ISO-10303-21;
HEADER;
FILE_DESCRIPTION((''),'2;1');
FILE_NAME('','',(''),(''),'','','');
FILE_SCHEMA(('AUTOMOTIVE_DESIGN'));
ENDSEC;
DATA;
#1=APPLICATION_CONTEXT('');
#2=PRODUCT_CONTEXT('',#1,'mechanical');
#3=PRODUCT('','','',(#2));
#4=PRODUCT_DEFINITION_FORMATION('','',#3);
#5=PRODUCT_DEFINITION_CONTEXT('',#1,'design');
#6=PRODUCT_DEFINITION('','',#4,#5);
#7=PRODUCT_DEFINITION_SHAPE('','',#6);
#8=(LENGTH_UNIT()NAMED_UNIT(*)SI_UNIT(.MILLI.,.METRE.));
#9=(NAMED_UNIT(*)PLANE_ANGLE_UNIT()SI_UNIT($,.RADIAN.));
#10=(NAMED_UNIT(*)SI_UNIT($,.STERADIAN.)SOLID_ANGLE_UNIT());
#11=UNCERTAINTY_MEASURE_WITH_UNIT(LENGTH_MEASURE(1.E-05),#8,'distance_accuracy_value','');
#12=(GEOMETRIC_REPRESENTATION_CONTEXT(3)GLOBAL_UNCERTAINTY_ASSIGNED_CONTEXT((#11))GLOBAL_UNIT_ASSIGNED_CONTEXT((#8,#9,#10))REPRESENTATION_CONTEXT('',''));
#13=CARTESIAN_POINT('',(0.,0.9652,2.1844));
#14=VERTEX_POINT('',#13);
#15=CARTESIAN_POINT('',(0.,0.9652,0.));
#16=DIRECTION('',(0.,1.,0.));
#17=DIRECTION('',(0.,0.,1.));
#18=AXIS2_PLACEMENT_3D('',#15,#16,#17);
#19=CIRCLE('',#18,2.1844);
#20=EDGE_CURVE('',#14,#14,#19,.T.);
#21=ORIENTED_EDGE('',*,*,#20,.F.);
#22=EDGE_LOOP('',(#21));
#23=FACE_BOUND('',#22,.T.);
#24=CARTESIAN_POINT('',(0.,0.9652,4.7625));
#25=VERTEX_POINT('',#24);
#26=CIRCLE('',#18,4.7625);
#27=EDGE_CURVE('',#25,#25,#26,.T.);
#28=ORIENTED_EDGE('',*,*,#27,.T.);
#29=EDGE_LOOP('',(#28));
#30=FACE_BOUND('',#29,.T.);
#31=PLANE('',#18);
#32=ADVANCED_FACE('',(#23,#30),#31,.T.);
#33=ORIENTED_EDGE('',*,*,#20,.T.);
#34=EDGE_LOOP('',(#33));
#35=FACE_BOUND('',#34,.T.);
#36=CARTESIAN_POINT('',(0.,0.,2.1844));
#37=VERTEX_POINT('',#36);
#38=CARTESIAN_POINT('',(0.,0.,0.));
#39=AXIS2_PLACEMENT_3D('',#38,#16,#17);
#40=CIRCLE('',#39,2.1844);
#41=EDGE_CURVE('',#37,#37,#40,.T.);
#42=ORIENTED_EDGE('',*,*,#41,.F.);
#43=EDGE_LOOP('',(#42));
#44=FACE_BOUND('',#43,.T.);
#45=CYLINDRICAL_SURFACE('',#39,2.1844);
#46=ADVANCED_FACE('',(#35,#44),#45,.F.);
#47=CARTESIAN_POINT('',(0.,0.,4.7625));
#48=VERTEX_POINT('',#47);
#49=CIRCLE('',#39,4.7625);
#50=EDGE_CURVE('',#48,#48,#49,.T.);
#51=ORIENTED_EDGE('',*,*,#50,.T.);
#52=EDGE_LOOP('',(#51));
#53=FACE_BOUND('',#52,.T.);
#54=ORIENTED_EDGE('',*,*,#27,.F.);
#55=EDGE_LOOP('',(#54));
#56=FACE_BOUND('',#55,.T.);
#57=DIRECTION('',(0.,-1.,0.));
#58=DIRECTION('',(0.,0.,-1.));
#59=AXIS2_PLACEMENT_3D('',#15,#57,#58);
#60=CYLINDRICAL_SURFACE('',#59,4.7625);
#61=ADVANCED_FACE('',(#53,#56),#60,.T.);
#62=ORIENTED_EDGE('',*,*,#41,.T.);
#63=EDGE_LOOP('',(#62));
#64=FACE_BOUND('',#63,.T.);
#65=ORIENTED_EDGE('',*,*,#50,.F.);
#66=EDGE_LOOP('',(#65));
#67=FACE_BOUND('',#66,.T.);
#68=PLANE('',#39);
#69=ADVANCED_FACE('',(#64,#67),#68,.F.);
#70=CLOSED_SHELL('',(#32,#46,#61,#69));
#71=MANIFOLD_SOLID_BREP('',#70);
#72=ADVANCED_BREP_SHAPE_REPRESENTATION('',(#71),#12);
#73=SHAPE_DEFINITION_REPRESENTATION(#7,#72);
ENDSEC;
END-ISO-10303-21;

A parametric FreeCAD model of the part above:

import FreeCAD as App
import Part
import Sketcher

V = App.Vector
Q = App.Units.Quantity

doc = App.newDocument("Part")
params = doc.addObject("Spreadsheet::Sheet", "Params")
for row, (alias, value) in enumerate([
    ("sketch1_diameter", "0.375 in"),
    ("pad1_length", "0.038 in"),
    ("sketch2_diameter", "0.172 in"),
], start=1):
    params.set(f"A{row}", alias)
    params.set(f"B{row}", "=" + value)
    params.setAlias(f"B{row}", alias)

body = doc.addObject("PartDesign::Body", "Body")

sketch1 = body.newObject("Sketcher::SketchObject", "Sketch")
sketch1.AttachmentSupport = (doc.getObject("XZ_Plane"), [""])
sketch1.MapMode = "FlatFace"
sketch1.addGeometry(Part.Circle(V(0, 0, 0), V(0, 0, 1), 4.8), False)
sketch1.addConstraint([
    Sketcher.Constraint("Coincident", 0, 3, -1, 1),
    Sketcher.Constraint("Diameter", 0, Q("0.375 in")),
])
sketch1.setExpression("Constraints[1]", "Params.sketch1_diameter")
pad1 = body.newObject("PartDesign::Pad", "Pad")
pad1.Profile = sketch1
pad1.setExpression("Length", "Params.pad1_length")
pad1.Reversed = True

sketch2 = body.newObject("Sketcher::SketchObject", "Sketch001")
sketch2.AttachmentSupport = (doc.getObject("XZ_Plane"), [""])
sketch2.MapMode = "FlatFace"
sketch2.AttachmentOffset = App.Placement(V(0, 0, -0.038 * 25.4), App.Rotation())
sketch2.addGeometry(Part.Circle(V(0, 0, 0), V(0, 0, 1), 2.2), False)
sketch2.addConstraint([
    Sketcher.Constraint("Coincident", 0, 3, -1, 1),
    Sketcher.Constraint("Diameter", 0, Q("0.172 in")),
])
sketch2.setExpression("Constraints[1]", "Params.sketch2_diameter")
pocket1 = body.newObject("PartDesign::Pocket", "Pocket")
pocket1.Profile = sketch2
pocket1.Type = "ThroughAll"
pocket1.Reversed = True

doc.recompute()
